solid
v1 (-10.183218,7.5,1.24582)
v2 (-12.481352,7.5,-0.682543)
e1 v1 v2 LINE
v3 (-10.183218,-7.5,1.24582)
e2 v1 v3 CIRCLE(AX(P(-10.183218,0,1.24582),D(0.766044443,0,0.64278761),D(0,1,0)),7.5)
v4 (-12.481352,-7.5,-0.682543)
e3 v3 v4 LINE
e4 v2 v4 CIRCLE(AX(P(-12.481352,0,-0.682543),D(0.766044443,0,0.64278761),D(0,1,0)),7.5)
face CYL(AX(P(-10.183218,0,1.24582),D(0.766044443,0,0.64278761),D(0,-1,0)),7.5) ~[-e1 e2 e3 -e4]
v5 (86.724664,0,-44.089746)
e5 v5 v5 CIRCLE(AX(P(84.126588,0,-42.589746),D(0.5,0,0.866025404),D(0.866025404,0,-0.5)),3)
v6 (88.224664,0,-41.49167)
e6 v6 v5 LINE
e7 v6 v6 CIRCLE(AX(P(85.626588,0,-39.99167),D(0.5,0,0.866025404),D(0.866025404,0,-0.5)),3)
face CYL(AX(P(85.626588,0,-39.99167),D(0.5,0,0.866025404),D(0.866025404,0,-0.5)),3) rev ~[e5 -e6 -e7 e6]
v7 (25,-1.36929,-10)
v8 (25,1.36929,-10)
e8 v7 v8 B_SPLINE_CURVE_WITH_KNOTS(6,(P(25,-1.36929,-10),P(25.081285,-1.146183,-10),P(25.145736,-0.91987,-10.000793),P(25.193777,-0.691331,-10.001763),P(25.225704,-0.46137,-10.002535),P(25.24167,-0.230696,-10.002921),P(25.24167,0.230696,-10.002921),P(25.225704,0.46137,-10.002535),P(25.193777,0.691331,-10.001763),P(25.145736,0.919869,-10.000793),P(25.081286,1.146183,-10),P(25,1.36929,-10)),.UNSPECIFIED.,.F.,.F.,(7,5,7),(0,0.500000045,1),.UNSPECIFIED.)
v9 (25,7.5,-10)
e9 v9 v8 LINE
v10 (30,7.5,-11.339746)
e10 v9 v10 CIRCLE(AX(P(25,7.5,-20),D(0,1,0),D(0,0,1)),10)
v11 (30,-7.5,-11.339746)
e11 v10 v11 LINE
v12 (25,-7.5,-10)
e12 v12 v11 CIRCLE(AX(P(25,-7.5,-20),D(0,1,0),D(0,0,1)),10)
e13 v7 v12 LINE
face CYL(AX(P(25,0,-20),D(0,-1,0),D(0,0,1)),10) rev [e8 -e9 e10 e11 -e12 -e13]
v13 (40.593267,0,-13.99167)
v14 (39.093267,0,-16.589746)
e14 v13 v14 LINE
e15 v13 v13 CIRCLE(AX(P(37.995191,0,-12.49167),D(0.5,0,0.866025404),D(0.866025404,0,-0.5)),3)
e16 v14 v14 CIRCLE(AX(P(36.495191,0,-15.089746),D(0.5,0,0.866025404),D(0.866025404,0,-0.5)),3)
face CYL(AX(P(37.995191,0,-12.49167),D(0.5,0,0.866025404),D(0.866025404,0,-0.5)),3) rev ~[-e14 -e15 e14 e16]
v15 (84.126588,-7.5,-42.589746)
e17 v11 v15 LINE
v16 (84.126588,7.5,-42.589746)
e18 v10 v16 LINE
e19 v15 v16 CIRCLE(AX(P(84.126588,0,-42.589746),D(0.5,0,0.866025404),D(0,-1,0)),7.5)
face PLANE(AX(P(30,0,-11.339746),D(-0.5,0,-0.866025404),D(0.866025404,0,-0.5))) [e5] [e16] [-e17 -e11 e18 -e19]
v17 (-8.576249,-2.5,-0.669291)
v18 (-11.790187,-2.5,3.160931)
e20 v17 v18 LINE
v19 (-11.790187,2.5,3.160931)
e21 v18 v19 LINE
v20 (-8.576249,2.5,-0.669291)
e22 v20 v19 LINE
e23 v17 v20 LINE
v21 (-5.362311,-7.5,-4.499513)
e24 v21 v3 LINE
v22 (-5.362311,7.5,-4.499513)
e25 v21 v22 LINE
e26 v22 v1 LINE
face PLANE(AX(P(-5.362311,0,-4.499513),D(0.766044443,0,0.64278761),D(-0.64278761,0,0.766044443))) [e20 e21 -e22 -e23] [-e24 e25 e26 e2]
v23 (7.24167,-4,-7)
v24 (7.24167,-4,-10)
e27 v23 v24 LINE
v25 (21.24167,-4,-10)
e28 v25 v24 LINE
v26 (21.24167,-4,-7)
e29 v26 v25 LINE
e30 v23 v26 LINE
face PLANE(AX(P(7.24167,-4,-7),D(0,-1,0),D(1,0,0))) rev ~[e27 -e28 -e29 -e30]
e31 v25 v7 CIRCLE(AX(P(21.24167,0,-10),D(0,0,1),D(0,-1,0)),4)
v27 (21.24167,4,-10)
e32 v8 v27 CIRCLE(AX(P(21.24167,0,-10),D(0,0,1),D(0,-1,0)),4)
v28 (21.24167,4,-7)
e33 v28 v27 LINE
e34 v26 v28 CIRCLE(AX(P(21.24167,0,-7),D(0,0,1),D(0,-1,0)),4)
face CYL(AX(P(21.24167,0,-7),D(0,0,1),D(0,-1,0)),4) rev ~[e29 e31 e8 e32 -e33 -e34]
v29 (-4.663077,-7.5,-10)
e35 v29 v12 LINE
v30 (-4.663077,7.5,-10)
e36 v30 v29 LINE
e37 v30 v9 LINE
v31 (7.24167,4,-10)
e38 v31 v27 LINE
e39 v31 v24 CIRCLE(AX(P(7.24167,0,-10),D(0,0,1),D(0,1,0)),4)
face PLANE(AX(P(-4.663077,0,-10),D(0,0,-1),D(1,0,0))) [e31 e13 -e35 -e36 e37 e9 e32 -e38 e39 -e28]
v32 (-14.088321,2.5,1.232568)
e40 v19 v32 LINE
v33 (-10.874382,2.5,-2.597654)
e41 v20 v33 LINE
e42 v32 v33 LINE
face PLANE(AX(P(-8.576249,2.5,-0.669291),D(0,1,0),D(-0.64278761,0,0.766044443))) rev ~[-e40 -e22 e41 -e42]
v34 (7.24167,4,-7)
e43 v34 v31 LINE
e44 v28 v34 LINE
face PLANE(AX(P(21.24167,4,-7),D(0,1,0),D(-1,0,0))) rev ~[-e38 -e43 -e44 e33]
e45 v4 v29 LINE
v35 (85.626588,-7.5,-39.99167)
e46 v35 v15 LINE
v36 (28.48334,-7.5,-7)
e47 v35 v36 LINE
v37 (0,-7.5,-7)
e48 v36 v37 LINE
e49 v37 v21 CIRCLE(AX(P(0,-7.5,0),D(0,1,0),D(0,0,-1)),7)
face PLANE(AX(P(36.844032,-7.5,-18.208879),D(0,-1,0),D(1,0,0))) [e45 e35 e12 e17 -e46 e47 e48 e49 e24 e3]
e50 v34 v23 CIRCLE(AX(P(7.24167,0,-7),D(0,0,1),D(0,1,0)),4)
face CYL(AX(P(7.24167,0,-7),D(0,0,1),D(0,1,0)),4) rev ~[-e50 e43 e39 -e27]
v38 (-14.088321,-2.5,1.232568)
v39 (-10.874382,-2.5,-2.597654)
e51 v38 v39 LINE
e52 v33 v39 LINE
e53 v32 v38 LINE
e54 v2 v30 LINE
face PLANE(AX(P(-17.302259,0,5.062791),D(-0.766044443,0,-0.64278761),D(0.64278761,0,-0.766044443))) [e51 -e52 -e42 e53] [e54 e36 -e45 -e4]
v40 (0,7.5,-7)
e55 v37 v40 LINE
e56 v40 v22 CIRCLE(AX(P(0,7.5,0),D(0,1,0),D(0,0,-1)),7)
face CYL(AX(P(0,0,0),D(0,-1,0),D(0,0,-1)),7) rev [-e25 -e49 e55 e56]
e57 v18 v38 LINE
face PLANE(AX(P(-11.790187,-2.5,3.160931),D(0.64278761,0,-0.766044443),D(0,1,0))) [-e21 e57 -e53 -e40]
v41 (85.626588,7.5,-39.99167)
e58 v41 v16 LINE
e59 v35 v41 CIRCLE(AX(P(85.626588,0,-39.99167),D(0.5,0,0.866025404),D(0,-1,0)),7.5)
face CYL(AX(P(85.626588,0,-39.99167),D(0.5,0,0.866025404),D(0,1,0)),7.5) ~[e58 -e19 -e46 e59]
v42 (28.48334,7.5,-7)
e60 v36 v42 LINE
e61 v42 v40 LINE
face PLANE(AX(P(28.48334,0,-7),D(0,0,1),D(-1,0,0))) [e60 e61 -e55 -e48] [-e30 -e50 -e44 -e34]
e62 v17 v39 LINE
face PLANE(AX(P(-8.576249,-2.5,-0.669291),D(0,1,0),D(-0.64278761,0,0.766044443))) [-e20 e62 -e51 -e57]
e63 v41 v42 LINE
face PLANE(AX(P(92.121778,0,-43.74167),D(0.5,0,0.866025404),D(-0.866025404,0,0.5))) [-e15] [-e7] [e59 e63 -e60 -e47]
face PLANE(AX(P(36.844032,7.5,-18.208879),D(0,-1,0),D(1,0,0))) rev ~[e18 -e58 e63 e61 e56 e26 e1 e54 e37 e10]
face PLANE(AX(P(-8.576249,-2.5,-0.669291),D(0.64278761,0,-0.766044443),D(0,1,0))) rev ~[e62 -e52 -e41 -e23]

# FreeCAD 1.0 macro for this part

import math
import FreeCAD as App
import Part
import Sketcher
Q = App.Units.Quantity


def add_polygon(sketch, points):
    """Adds a closed chain of lines whose ends are joined by coincident constraints."""
    first, n = sketch.GeometryCount, len(points)
    for a, b in zip(points, points[1:] + points[:1]):
        sketch.addGeometry(Part.LineSegment(App.Vector(*a, 0), App.Vector(*b, 0)), False)
    for i in range(n):
        sketch.addConstraint(Sketcher.Constraint("Coincident", first + i, 2, first + (i + 1) % n, 1))

doc = App.newDocument("Part")
params = doc.addObject("Spreadsheet::Sheet", "Params")
for row, (alias, value) in enumerate([
    ("sketch1_radius", "10 mm"),
    ("sketch1_radius2", "7 mm"),
    ("sketch1_length", "15 mm"),
    ("sketch1_length2", "3 mm"),
    ("sketch1_length3", "70 mm"),
    ("pad1_length", "15 mm"),
    ("sketch2_radius", "7.5 mm"),
    ("sketch2_width", "5 mm"),
    ("sketch3_radius", "4 mm"),
    ("sketch3_width", "14 mm"),
    ("sketch4_diameter", "6 mm"),
    ("sketch4_radius", "7.5 mm"),
], start=1):
    params.set(f"A{row}", alias)
    params.set(f"B{row}", "=" + value)
    params.setAlias(f"B{row}", alias)

body = doc.addObject("PartDesign::Body", "Body")

sketch1 = body.newObject("Sketcher::SketchObject", "Sketch")
sketch1.AttachmentSupport = (doc.getObject("XZ_Plane"), [""])
sketch1.MapMode = "FlatFace"
sketch1.addGeometry([
    Part.LineSegment(App.Vector(-5.4, -4.5, 0), App.Vector(-15, 7, 0)),
    Part.LineSegment(App.Vector(-15, 7, 0), App.Vector(-17.3, 5.1, 0)),
    Part.LineSegment(App.Vector(-17.3, 5.1, 0), App.Vector(-4.7, -10, 0)),
    Part.LineSegment(App.Vector(-4.7, -10, 0), App.Vector(25, -10, 0)),
    Part.ArcOfCircle(Part.Circle(App.Vector(25, -20, 0), App.Vector(0, 0, 1), 10), math.radians(60), math.radians(90)),
    Part.LineSegment(App.Vector(30, -11.3, 0), App.Vector(90.6, -46.3, 0)),
    Part.LineSegment(App.Vector(90.6, -46.3, 0), App.Vector(92.1, -43.7, 0)),
    Part.LineSegment(App.Vector(92.1, -43.7, 0), App.Vector(28.5, -7, 0)),
    Part.LineSegment(App.Vector(28.5, -7, 0), App.Vector(0, -7, 0)),
    Part.ArcOfCircle(Part.Circle(App.Vector(0, 0, 0), App.Vector(0, 0, 1), 7), math.radians(-140), math.radians(-90)),
], False)
sketch1.addConstraint([
    Sketcher.Constraint("Coincident", 0, 2, 1, 1),
    Sketcher.Constraint("Coincident", 1, 2, 2, 1),
    Sketcher.Constraint("Coincident", 2, 2, 3, 1),
    Sketcher.Constraint("Tangent", 3, 2, 4, 2),
    Sketcher.Constraint("Tangent", 4, 1, 5, 1),
    Sketcher.Constraint("Coincident", 5, 2, 6, 1),
    Sketcher.Constraint("Coincident", 6, 2, 7, 1),
    Sketcher.Constraint("Coincident", 7, 2, 8, 1),
    Sketcher.Constraint("Tangent", 8, 2, 9, 2),
    Sketcher.Constraint("Tangent", 9, 1, 0, 1),
    Sketcher.Constraint("Horizontal", 3),
    Sketcher.Constraint("Horizontal", 8),
    Sketcher.Constraint("Coincident", 9, 3, -1, 1),
    Sketcher.Constraint("Perpendicular", 0, 1),
    Sketcher.Constraint("Perpendicular", 1, 2),
    Sketcher.Constraint("Perpendicular", 5, 6),
    Sketcher.Constraint("Perpendicular", 6, 7),
    Sketcher.Constraint("Equal", 1, 6),
    Sketcher.Constraint("Radius", 4, 10.0),
    Sketcher.Constraint("Radius", 9, 7.0),
    Sketcher.Constraint("Angle", 0, Q("130 deg")),
    Sketcher.Constraint("Angle", 5, Q("-30 deg")),
    Sketcher.Constraint("Distance", 0, 15.0),
    Sketcher.Constraint("Distance", 1, 3.0),
    Sketcher.Constraint("Distance", 5, 70.0),
    Sketcher.Constraint("DistanceX", -1, 1, 4, 3, 25.0),
    Sketcher.Constraint("DistanceY", 4, 3, -1, 1, 20.0),
])
sketch1.setExpression("Constraints[18]", "Params.sketch1_radius")
sketch1.setExpression("Constraints[19]", "Params.sketch1_radius2")
sketch1.setExpression("Constraints[22]", "Params.sketch1_length")
sketch1.setExpression("Constraints[23]", "Params.sketch1_length2")
sketch1.setExpression("Constraints[24]", "Params.sketch1_length3")
pad1 = body.newObject("PartDesign::Pad", "Pad")
pad1.Profile = sketch1
pad1.setExpression("Length", "Params.pad1_length")
pad1.Midplane = True

sketch2 = body.newObject("Sketcher::SketchObject", "Sketch001")
sketch2.Placement = App.Placement(App.Vector(-5.362311, 0, -4.499513), App.Rotation(App.Vector(0, 1, 0), App.Vector(-0.64278761, 0, 0.766044443), App.Vector(0.766044443, 0, 0.64278761), "ZXY"))
sketch2.addGeometry(Part.ArcOfCircle(Part.Circle(App.Vector(0, 8, 0), App.Vector(0, 0, 1), 8), math.radians(90), math.radians(180)), False)
sketch2.addGeometry(Part.LineSegment(App.Vector(0, 15, 0), App.Vector(-8, 15, 0)), False)
sketch2.addGeometry(Part.LineSegment(App.Vector(-8, 15, 0), App.Vector(-8, 8, 0)), False)
add_polygon(sketch2, [(-2, 10), (-2, 5), (2, 5), (2, 10)])
sketch2.addGeometry(Part.ArcOfCircle(Part.Circle(App.Vector(0, 8, 0), App.Vector(0, 0, 1), 8), math.radians(0), math.radians(90)), False)
sketch2.addGeometry(Part.LineSegment(App.Vector(8, 8, 0), App.Vector(8, 15, 0)), False)
sketch2.addGeometry(Part.LineSegment(App.Vector(8, 15, 0), App.Vector(0, 15, 0)), False)
sketch2.addConstraint([
    Sketcher.Constraint("Tangent", 0, 1, 1, 1),
    Sketcher.Constraint("Coincident", 1, 2, 2, 1),
    Sketcher.Constraint("Tangent", 2, 2, 0, 2),
    Sketcher.Constraint("Tangent", 7, 1, 8, 1),
    Sketcher.Constraint("Coincident", 8, 2, 9, 1),
    Sketcher.Constraint("Tangent", 9, 2, 7, 2),
    Sketcher.Constraint("Horizontal", 1),
    Sketcher.Constraint("Vertical", 2),
    Sketcher.Constraint("Vertical", 3),
    Sketcher.Constraint("Horizontal", 4),
    Sketcher.Constraint("Vertical", 5),
    Sketcher.Constraint("Horizontal", 6),
    Sketcher.Constraint("Vertical", 8),
    Sketcher.Constraint("Horizontal", 9),
    Sketcher.Constraint("Coincident", 7, 3, 0, 3),
    Sketcher.Constraint("Equal", 0, 7),
    Sketcher.Constraint("PointOnObject", 0, 3, -2),
    Sketcher.Constraint("Equal", 6, 3),
    Sketcher.Constraint("Radius", 0, 7.5),
    Sketcher.Constraint("DistanceX", 4, 1, 4, 2, 5.0),
    Sketcher.Constraint("DistanceY", -1, 1, 0, 1, 15.0),
    Sketcher.Constraint("DistanceY", -1, 1, 3, 2, 5.0),
    Sketcher.Constraint("DistanceX", 2, 2, 3, 2, 5.0),
])
sketch2.setExpression("Constraints[22]", "Params.sketch2_radius")
sketch2.setExpression("Constraints[23]", "Params.sketch2_width")
pocket1 = body.newObject("PartDesign::Pocket", "Pocket")
pocket1.Profile = sketch2
pocket1.Type = "ThroughAll"

sketch3 = body.newObject("Sketcher::SketchObject", "Sketch002")
sketch3.AttachmentSupport = (doc.getObject("XY_Plane"), [""])
sketch3.MapMode = "FlatFace"
sketch3.AttachmentOffset = App.Placement(App.Vector(0, 0, -7), App.Rotation())
sketch3.addGeometry([
    Part.ArcOfCircle(Part.Circle(App.Vector(7.2, 0, 0), App.Vector(0, 0, 1), 4), math.radians(90), math.radians(270)),
    Part.LineSegment(App.Vector(7.2, -4, 0), App.Vector(21.2, -4, 0)),
    Part.ArcOfCircle(Part.Circle(App.Vector(21.2, 0, 0), App.Vector(0, 0, 1), 4), math.radians(-90), math.radians(90)),
    Part.LineSegment(App.Vector(21.2, 4, 0), App.Vector(7.2, 4, 0)),
], False)
sketch3.addConstraint([
    Sketcher.Constraint("Tangent", 0, 2, 1, 1),
    Sketcher.Constraint("Tangent", 1, 2, 2, 1),
    Sketcher.Constraint("Tangent", 2, 2, 3, 1),
    Sketcher.Constraint("Tangent", 3, 2, 0, 1),
    Sketcher.Constraint("Horizontal", 1),
    Sketcher.Constraint("Horizontal", 3),
    Sketcher.Constraint("PointOnObject", 0, 3, -1),
    Sketcher.Constraint("Radius", 0, 4.0),
    Sketcher.Constraint("DistanceX", 1, 1, 1, 2, 14.0),
    Sketcher.Constraint("DistanceX", -1, 1, 0, 3, 7.24167),
])
sketch3.setExpression("Constraints[7]", "Params.sketch3_radius")
sketch3.setExpression("Constraints[8]", "Params.sketch3_width")
pocket2 = body.newObject("PartDesign::Pocket", "Pocket001")
pocket2.Profile = sketch3
pocket2.Type = "ThroughAll"

sketch4 = body.newObject("Sketcher::SketchObject", "Sketch003")
sketch4.Placement = App.Placement(App.Vector(4.089746, 0, 7.083648), App.Rotation(App.Vector(0.866025404, 0, -0.5), App.Vector(0, 1, 0), App.Vector(0.5, 0, 0.866025404), "ZXY"))
sketch4.addGeometry([
    Part.Circle(App.Vector(39.2, 0, 0), App.Vector(0, 0, 1), 3),
    Part.Circle(App.Vector(94.2, 0, 0), App.Vector(0, 0, 1), 3),
    Part.ArcOfCircle(Part.Circle(App.Vector(94.2, 0, 0), App.Vector(0, 0, 1), 7.5), math.radians(0), math.radians(90)),
    Part.LineSegment(App.Vector(101.7, 0, 0), App.Vector(101.7, 7.5, 0)),
    Part.LineSegment(App.Vector(101.7, 7.5, 0), App.Vector(94.2, 7.5, 0)),
    Part.ArcOfCircle(Part.Circle(App.Vector(94.2, 0, 0), App.Vector(0, 0, 1), 7.5), math.radians(-90), math.radians(0)),
    Part.LineSegment(App.Vector(94.2, -7.5, 0), App.Vector(101.7, -7.5, 0)),
    Part.LineSegment(App.Vector(101.7, -7.5, 0), App.Vector(101.7, 0, 0)),
], False)
sketch4.addConstraint([
    Sketcher.Constraint("Tangent", 2, 1, 3, 1),
    Sketcher.Constraint("Coincident", 3, 2, 4, 1),
    Sketcher.Constraint("Tangent", 4, 2, 2, 2),
    Sketcher.Constraint("Tangent", 5, 1, 6, 1),
    Sketcher.Constraint("Coincident", 6, 2, 7, 1),
    Sketcher.Constraint("Tangent", 7, 2, 5, 2),
    Sketcher.Constraint("Vertical", 3),
    Sketcher.Constraint("Horizontal", 4),
    Sketcher.Constraint("Horizontal", 6),
    Sketcher.Constraint("Vertical", 7),
    Sketcher.Constraint("Coincident", 2, 3, 1, 3),
    Sketcher.Constraint("Coincident", 5, 3, 1, 3),
    Sketcher.Constraint("Equal", 0, 1),
    Sketcher.Constraint("Equal", 2, 5),
    Sketcher.Constraint("PointOnObject", 0, 3, -1),
    Sketcher.Constraint("PointOnObject", 1, 3, -1),
    Sketcher.Constraint("Diameter", 0, 6.0),
    Sketcher.Constraint("Radius", 2, 7.5),
    Sketcher.Constraint("DistanceX", 0, 3, 1, 3, 55.0),
    Sketcher.Constraint("DistanceX", -1, 1, 0, 3, 39.150635),
])
sketch4.setExpression("Constraints[16]", "Params.sketch4_diameter")
sketch4.setExpression("Constraints[17]", "Params.sketch4_radius")
pocket3 = body.newObject("PartDesign::Pocket", "Pocket002")
pocket3.Profile = sketch4
pocket3.Type = "ThroughAll"

doc.recompute()
